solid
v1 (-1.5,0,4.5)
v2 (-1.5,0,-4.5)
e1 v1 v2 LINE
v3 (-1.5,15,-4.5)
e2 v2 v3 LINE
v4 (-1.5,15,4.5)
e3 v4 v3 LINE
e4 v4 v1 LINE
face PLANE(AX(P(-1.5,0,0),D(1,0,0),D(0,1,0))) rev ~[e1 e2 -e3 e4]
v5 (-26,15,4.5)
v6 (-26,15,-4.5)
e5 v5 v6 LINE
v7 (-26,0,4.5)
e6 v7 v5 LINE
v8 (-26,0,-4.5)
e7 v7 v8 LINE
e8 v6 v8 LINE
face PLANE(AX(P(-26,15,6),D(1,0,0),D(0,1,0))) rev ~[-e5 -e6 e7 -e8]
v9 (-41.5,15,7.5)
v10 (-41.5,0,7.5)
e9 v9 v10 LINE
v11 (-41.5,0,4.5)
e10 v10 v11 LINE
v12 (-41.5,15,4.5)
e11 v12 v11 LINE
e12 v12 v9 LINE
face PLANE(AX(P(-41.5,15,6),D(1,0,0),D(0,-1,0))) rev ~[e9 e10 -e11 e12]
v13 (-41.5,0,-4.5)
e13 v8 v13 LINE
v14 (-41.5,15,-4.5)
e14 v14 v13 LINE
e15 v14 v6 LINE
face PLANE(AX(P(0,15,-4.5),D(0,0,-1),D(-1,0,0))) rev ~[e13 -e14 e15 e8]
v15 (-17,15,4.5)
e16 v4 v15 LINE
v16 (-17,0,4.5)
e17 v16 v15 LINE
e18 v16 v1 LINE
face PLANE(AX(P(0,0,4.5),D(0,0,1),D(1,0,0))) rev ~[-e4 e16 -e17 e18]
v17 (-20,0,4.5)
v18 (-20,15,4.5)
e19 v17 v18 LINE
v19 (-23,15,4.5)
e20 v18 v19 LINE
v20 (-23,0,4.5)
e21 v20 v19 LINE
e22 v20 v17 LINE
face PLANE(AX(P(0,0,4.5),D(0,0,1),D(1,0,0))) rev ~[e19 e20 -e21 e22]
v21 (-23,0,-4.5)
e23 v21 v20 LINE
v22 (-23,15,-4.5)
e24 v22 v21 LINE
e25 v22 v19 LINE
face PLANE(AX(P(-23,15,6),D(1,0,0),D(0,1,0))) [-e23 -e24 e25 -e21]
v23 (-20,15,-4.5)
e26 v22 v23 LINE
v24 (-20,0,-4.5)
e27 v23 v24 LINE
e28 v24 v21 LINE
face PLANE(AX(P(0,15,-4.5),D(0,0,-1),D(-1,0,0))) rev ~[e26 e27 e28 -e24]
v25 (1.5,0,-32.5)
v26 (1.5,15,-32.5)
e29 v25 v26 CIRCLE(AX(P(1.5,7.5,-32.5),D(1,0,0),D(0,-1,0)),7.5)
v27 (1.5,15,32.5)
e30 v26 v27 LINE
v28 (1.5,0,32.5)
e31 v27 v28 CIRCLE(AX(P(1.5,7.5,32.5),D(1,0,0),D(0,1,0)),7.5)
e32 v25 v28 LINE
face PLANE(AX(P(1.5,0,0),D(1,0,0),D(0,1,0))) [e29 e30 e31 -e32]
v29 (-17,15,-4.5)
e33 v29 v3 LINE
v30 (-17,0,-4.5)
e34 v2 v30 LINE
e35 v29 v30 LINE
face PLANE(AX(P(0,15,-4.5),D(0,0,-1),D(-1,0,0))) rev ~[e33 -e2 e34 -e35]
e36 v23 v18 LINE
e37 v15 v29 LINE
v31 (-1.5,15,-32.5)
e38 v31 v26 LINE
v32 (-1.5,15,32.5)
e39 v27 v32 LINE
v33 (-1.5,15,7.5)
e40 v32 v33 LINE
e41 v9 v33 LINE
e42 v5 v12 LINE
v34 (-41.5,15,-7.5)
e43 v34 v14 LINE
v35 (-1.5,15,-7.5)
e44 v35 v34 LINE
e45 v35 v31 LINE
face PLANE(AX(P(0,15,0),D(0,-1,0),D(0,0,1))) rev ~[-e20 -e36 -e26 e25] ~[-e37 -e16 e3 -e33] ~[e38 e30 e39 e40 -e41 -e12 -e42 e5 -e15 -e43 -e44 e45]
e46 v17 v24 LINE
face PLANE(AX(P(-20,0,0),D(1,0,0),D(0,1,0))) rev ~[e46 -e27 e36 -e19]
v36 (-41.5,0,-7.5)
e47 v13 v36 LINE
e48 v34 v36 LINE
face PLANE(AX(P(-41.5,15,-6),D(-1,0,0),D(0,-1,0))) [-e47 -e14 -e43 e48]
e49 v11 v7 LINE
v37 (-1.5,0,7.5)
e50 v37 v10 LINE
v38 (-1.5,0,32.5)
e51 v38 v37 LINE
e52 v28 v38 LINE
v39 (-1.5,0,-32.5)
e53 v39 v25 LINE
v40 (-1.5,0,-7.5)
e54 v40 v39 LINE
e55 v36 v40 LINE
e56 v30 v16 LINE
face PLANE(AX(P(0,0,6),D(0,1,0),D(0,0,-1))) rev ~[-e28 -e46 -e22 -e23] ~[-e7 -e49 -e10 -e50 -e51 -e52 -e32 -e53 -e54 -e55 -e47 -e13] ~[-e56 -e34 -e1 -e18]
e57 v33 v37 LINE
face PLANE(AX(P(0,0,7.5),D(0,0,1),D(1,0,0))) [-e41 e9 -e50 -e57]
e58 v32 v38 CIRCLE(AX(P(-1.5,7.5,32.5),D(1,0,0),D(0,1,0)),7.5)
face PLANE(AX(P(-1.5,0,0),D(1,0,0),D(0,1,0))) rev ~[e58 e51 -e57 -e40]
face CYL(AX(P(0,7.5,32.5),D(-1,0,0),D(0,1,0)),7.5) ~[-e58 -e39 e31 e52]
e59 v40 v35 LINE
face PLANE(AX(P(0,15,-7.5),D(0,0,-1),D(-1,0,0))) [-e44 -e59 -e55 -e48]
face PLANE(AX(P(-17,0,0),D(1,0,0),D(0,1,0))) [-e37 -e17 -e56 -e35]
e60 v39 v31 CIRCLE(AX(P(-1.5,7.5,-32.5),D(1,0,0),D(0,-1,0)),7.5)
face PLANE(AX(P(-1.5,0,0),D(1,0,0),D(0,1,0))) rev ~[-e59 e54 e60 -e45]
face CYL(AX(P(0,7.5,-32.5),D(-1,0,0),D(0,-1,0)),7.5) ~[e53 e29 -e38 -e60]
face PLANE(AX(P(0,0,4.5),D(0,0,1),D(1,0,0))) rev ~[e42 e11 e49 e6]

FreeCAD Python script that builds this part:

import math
import FreeCAD as App
import Part
import Sketcher
Q = App.Units.Quantity


def add_polygon(sketch, points):
    """Adds a closed chain of lines whose ends are joined by coincident constraints."""
    first, n = sketch.GeometryCount, len(points)
    for a, b in zip(points, points[1:] + points[:1]):
        sketch.addGeometry(Part.LineSegment(App.Vector(*a, 0), App.Vector(*b, 0)), False)
    for i in range(n):
        sketch.addConstraint(Sketcher.Constraint("Coincident", first + i, 2, first + (i + 1) % n, 1))

doc = App.newDocument("Part")
body = doc.addObject("PartDesign::Body", "Body")

# Sketch on YZ plane
sketch1 = body.newObject("Sketcher::SketchObject", "Sketch")
sketch1.AttachmentSupport = (doc.getObject("YZ_Plane"), [""])
sketch1.MapMode = "FlatFace"
sketch1.addGeometry(Part.ArcOfCircle(Part.Circle(App.Vector(7.5, -32.5, 0), App.Vector(0, 0, 1), 7.5), math.radians(180), math.radians(360)), False)
sketch1.addGeometry(Part.LineSegment(App.Vector(15, -32.5, 0), App.Vector(15, 32.5, 0)), False)
sketch1.addGeometry(Part.ArcOfCircle(Part.Circle(App.Vector(7.5, 32.5, 0), App.Vector(0, 0, 1), 7.5), math.radians(0), math.radians(180)), False)
sketch1.addGeometry(Part.LineSegment(App.Vector(0, 32.5, 0), App.Vector(0, -32.5, 0)), False)
sketch1.addConstraint(Sketcher.Constraint("Tangent", 0, 2, 1, 1))
sketch1.addConstraint(Sketcher.Constraint("Tangent", 1, 2, 2, 1))
sketch1.addConstraint(Sketcher.Constraint("Tangent", 2, 2, 3, 1))
sketch1.addConstraint(Sketcher.Constraint("Tangent", 3, 2, 0, 1))
sketch1.addConstraint(Sketcher.Constraint("Vertical", 1))
sketch1.addConstraint(Sketcher.Constraint("Vertical", 3))
sketch1.addConstraint(Sketcher.Constraint("Symmetric", 2, 2, 3, 2, -1, 1))
sketch1.addConstraint(Sketcher.Constraint("Radius", 0, Q("7.5 mm")))
sketch1.addConstraint(Sketcher.Constraint("DistanceY", 1, 1, 1, 2, Q("65 mm")))
pad1 = body.newObject("PartDesign::Pad", "Pad")
pad1.Profile = sketch1
pad1.Length = 3
pad1.Midplane = True

# Sketch on XY plane
sketch2 = body.newObject("Sketcher::SketchObject", "Sketch001")
sketch2.AttachmentSupport = (doc.getObject("XY_Plane"), [""])
sketch2.MapMode = "FlatFace"
sketch2.AttachmentOffset = App.Placement(App.Vector(0, 0, 6), App.Rotation())
add_polygon(sketch2, [(-1.5, 0), (-1.5, 15), (-41.5, 15), (-41.5, 0)])  # lines 0-3
sketch2.addConstraint(Sketcher.Constraint("Vertical", 0))
sketch2.addConstraint(Sketcher.Constraint("Horizontal", 1))
sketch2.addConstraint(Sketcher.Constraint("Vertical", 2))
sketch2.addConstraint(Sketcher.Constraint("Horizontal", 3))
sketch2.addConstraint(Sketcher.Constraint("PointOnObject", 2, 2, -1))
sketch2.addConstraint(Sketcher.Constraint("DistanceX", 1, 2, 1, 1, Q("40 mm")))
sketch2.addConstraint(Sketcher.Constraint("DistanceY", 0, 1, 0, 2, Q("15 mm")))
sketch2.addConstraint(Sketcher.Constraint("DistanceX", 0, 2, -1, 1, Q("1.5 mm")))
pad2 = body.newObject("PartDesign::Pad", "Pad001")
pad2.Profile = sketch2
pad2.Length = 3
pad2.Midplane = True

# Sketch on XY plane
sketch3 = body.newObject("Sketcher::SketchObject", "Sketch002")
sketch3.AttachmentSupport = (doc.getObject("XY_Plane"), [""])
sketch3.MapMode = "FlatFace"
sketch3.AttachmentOffset = App.Placement(App.Vector(0, 0, -6), App.Rotation())
add_polygon(sketch3, [(-1.5, 15), (-1.5, 0), (-41.5, 0), (-41.5, 15)])  # lines 0-3
sketch3.addConstraint(Sketcher.Constraint("Vertical", 0))
sketch3.addConstraint(Sketcher.Constraint("Horizontal", 1))
sketch3.addConstraint(Sketcher.Constraint("Vertical", 2))
sketch3.addConstraint(Sketcher.Constraint("Horizontal", 3))
sketch3.addConstraint(Sketcher.Constraint("PointOnObject", 0, 2, -1))
sketch3.addConstraint(Sketcher.Constraint("DistanceX", 1, 2, 1, 1, Q("40 mm")))
sketch3.addConstraint(Sketcher.Constraint("DistanceY", 0, 2, 0, 1, Q("15 mm")))
sketch3.addConstraint(Sketcher.Constraint("DistanceX", 0, 2, -1, 1, Q("1.5 mm")))
pad3 = body.newObject("PartDesign::Pad", "Pad002")
pad3.Profile = sketch3
pad3.Length = 3
pad3.Midplane = True

# Sketch on YZ plane
sketch4 = body.newObject("Sketcher::SketchObject", "Sketch003")
sketch4.AttachmentSupport = (doc.getObject("YZ_Plane"), [""])
sketch4.MapMode = "FlatFace"
sketch4.AttachmentOffset = App.Placement(App.Vector(0, 0, -24.5), App.Rotation())
add_polygon(sketch4, [(0, 6), (0, -6), (15, -6), (15, 6)])  # lines 0-3
sketch4.addConstraint(Sketcher.Constraint("Vertical", 0))
sketch4.addConstraint(Sketcher.Constraint("Horizontal", 1))
sketch4.addConstraint(Sketcher.Constraint("Vertical", 2))
sketch4.addConstraint(Sketcher.Constraint("Horizontal", 3))
sketch4.addConstraint(Sketcher.Constraint("Symmetric", 0, 2, 3, 2, -1, 1))
sketch4.addConstraint(Sketcher.Constraint("DistanceY", 0, 2, -1, 1, Q("6 mm")))
sketch4.addConstraint(Sketcher.Constraint("DistanceX", 1, 1, 1, 2, Q("15 mm")))
pad4 = body.newObject("PartDesign::Pad", "Pad003")
pad4.Profile = sketch4
pad4.Length = 3
pad4.Midplane = True

# Sketch on YZ plane
sketch5 = body.newObject("Sketcher::SketchObject", "Sketch004")
sketch5.AttachmentSupport = (doc.getObject("YZ_Plane"), [""])
sketch5.MapMode = "FlatFace"
sketch5.AttachmentOffset = App.Placement(App.Vector(0, 0, -18.5), App.Rotation())
add_polygon(sketch5, [(0, -6), (15, -6), (15, 6), (0, 6)])  # lines 0-3
sketch5.addConstraint(Sketcher.Constraint("Horizontal", 0))
sketch5.addConstraint(Sketcher.Constraint("Vertical", 1))
sketch5.addConstraint(Sketcher.Constraint("Horizontal", 2))
sketch5.addConstraint(Sketcher.Constraint("Vertical", 3))
sketch5.addConstraint(Sketcher.Constraint("Symmetric", 2, 2, 3, 2, -1, 1))
sketch5.addConstraint(Sketcher.Constraint("DistanceY", 0, 2, -1, 1, Q("6 mm")))
sketch5.addConstraint(Sketcher.Constraint("DistanceX", 0, 1, 0, 2, Q("15 mm")))
pad5 = body.newObject("PartDesign::Pad", "Pad004")
pad5.Profile = sketch5
pad5.Length = 3
pad5.Midplane = True

doc.recompute()
